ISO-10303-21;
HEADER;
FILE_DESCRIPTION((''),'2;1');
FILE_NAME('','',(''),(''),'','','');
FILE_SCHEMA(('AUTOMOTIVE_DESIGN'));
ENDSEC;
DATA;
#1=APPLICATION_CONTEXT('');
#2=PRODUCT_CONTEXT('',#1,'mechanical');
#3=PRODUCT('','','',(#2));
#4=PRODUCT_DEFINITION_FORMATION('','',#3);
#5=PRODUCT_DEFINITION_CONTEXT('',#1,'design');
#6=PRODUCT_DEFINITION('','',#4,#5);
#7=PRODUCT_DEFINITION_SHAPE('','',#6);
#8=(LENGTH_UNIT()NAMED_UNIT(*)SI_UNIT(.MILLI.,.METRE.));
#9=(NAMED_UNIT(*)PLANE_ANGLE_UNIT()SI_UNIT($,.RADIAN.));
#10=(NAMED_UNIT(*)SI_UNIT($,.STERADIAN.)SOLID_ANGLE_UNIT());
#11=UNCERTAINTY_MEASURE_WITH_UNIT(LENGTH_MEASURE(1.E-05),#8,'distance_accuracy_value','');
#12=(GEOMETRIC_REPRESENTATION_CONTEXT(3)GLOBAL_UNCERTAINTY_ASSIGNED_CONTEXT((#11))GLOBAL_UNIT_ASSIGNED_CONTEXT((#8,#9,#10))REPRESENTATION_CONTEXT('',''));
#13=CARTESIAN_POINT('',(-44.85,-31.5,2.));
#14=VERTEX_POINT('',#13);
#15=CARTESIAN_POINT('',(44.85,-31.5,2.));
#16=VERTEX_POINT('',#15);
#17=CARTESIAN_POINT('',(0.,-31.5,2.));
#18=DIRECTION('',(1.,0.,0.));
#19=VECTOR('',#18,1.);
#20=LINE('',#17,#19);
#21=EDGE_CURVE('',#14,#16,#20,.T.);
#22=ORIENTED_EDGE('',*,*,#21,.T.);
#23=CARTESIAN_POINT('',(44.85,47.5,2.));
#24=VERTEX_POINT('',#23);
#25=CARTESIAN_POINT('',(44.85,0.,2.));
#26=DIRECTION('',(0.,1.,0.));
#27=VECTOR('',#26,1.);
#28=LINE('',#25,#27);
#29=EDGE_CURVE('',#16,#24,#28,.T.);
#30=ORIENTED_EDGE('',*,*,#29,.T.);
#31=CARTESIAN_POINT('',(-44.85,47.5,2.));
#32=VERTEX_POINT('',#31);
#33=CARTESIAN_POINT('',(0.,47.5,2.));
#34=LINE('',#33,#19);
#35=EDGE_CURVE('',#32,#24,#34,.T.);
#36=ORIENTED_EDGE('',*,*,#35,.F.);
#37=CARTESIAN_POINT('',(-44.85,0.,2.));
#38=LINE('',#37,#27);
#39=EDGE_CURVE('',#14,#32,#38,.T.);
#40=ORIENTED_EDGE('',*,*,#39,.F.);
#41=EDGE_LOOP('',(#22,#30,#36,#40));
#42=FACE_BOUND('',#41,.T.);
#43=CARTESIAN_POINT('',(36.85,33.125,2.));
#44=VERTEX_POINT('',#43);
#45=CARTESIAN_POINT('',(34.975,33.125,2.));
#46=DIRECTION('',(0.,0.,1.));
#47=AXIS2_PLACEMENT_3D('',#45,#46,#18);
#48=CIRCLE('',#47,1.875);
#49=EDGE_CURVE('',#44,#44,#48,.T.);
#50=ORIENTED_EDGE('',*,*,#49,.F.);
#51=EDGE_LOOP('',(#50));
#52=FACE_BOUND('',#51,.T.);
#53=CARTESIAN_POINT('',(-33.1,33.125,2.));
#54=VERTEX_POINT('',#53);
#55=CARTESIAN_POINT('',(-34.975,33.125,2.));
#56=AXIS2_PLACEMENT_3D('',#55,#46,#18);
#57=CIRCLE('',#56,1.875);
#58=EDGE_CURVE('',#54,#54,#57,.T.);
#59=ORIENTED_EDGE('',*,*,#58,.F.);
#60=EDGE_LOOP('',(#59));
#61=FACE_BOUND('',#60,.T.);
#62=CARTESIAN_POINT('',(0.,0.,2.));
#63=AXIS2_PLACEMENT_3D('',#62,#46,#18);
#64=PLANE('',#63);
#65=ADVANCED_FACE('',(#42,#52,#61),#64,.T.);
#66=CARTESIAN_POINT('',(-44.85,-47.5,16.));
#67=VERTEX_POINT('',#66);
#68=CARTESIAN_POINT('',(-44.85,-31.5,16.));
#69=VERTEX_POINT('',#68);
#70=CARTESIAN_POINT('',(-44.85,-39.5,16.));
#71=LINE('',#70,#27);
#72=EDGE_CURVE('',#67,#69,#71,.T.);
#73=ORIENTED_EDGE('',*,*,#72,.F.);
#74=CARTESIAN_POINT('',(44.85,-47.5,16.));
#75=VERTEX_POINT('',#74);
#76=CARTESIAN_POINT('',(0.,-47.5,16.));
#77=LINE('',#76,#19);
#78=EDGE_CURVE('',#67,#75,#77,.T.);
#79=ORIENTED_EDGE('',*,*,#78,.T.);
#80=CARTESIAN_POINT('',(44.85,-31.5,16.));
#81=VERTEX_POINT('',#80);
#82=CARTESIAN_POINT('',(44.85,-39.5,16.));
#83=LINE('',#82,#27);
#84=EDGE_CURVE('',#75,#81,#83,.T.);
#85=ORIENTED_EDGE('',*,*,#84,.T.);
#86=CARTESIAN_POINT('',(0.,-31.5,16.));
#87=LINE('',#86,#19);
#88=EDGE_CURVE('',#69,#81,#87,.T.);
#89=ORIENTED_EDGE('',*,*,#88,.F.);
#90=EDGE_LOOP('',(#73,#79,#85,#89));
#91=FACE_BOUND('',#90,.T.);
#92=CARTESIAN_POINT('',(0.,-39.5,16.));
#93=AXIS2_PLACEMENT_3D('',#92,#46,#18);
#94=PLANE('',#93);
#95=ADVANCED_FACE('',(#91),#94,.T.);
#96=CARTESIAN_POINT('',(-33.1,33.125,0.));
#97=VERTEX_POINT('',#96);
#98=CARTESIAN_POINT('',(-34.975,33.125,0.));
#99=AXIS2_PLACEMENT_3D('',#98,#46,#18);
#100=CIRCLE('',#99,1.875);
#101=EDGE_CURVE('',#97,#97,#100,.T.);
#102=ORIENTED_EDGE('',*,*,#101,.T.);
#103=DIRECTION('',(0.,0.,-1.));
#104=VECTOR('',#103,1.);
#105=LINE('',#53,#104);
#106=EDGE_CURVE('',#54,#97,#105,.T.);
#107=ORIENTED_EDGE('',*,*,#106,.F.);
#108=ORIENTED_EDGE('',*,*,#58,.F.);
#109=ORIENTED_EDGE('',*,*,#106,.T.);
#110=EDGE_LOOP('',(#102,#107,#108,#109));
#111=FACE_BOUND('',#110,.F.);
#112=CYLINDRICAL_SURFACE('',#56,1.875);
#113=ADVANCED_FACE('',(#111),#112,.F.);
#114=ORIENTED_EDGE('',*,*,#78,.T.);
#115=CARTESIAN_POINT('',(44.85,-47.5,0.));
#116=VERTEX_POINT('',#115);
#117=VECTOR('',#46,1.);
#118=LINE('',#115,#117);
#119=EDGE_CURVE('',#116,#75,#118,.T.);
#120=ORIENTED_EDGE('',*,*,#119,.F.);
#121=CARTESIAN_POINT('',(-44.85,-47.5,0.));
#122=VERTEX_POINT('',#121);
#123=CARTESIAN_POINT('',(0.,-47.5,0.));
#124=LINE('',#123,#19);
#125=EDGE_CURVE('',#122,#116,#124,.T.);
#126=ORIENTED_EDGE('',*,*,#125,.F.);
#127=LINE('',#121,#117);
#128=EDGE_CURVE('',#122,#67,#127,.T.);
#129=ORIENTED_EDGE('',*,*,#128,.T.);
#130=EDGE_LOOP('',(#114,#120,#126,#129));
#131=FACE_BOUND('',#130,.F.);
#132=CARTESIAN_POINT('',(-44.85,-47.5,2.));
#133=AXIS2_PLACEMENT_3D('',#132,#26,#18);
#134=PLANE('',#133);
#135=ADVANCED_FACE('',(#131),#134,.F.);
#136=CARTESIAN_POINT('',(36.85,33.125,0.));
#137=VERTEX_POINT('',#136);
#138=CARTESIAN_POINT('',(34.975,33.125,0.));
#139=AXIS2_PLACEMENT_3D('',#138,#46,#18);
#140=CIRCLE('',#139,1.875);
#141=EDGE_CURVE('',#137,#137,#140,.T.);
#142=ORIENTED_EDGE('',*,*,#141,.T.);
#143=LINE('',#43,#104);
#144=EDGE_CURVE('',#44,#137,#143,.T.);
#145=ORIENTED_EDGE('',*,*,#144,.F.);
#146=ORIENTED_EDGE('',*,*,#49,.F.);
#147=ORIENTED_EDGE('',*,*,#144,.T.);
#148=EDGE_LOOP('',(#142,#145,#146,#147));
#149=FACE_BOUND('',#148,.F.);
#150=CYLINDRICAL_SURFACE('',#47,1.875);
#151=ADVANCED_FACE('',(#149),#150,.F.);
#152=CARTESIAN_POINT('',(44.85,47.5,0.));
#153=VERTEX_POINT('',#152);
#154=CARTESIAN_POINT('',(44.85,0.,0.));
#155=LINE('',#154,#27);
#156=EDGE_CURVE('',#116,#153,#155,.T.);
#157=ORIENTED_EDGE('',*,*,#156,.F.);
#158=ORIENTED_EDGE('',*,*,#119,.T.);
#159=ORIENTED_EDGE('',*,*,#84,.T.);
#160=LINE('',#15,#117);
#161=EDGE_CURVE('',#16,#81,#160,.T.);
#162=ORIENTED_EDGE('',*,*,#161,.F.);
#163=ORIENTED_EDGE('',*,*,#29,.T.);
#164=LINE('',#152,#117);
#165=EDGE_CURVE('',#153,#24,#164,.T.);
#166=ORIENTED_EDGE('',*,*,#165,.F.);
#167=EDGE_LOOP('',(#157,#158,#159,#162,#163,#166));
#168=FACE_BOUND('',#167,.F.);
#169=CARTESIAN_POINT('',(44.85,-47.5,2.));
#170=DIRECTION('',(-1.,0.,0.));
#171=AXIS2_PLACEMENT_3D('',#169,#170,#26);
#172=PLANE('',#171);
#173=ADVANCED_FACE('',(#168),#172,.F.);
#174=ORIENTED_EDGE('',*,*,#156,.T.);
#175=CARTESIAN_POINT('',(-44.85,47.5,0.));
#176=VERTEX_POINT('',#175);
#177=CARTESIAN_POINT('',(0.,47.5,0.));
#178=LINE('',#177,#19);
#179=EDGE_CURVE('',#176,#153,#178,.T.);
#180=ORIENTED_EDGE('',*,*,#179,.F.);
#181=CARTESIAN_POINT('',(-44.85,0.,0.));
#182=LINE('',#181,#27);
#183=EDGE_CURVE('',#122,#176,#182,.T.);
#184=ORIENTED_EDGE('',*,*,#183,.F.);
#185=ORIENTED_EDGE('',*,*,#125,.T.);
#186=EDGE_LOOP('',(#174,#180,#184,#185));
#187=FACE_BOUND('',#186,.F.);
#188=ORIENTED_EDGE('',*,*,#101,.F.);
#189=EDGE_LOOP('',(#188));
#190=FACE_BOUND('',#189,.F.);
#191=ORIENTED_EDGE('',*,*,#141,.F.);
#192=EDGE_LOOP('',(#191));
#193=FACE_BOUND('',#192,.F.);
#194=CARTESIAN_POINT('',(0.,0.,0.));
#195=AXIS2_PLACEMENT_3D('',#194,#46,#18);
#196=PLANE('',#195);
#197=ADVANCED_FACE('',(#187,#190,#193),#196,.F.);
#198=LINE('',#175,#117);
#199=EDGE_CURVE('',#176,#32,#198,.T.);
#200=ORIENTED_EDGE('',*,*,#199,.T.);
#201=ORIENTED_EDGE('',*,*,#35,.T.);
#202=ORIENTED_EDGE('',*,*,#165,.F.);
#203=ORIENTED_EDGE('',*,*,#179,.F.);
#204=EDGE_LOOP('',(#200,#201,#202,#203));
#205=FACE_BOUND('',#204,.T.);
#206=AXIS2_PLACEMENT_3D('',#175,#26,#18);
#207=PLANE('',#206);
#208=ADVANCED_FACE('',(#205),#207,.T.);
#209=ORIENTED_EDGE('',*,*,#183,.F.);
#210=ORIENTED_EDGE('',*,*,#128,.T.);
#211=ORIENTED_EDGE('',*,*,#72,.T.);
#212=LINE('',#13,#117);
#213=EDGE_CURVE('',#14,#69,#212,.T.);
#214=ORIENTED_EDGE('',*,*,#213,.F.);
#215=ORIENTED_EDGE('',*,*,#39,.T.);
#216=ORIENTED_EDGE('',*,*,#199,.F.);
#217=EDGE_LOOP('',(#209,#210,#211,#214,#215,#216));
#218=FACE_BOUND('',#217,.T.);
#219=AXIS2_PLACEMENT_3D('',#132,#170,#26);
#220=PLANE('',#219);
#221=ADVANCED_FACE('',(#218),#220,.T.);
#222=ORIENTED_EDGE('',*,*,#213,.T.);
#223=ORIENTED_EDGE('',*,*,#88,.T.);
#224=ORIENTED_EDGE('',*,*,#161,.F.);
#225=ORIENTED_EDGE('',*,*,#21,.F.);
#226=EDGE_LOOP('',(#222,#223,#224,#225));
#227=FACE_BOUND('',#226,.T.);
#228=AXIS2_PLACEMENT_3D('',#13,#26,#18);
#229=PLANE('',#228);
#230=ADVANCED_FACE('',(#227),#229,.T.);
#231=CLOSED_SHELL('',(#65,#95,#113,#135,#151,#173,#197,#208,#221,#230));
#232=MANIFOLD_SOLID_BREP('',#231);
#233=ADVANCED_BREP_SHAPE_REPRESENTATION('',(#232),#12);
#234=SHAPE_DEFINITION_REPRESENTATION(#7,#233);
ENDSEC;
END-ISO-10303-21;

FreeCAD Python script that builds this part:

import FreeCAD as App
import Part
import Sketcher
from FreeCAD import Vector


def add_polygon(sketch, points):
    """Adds a closed chain of lines whose ends are joined by coincident constraints."""
    first, n = sketch.GeometryCount, len(points)
    for a, b in zip(points, points[1:] + points[:1]):
        sketch.addGeometry(Part.LineSegment(App.Vector(*a, 0), App.Vector(*b, 0)), False)
    for i in range(n):
        sketch.addConstraint(Sketcher.Constraint("Coincident", first + i, 2, first + (i + 1) % n, 1))

doc = App.newDocument("Part")
body = doc.addObject("PartDesign::Body", "Body")

sketch1 = doc.addObject("Sketcher::SketchObject", "Sketch")
body.addObject(sketch1)
sketch1.AttachmentSupport = (doc.XY_Plane, [""])
sketch1.MapMode = "FlatFace"
add_polygon(sketch1, [(-45, 48), (-45, -48), (45, -48), (45, 48)])
sketch1.addConstraint([
    Sketcher.Constraint("Vertical", 0),
    Sketcher.Constraint("Horizontal", 1),
    Sketcher.Constraint("Vertical", 2),
    Sketcher.Constraint("Horizontal", 3),
    Sketcher.Constraint("Symmetric", 0, 2, 2, 2, -1, 1),
    Sketcher.Constraint("DistanceY", 0, 2, 0, 1, 95.0),
    Sketcher.Constraint("DistanceX", 1, 1, 1, 2, 89.7),
])
pad1 = doc.addObject("PartDesign::Pad", "Pad")
body.addObject(pad1)
pad1.Profile = sketch1
pad1.Length = 2

sketch2 = doc.addObject("Sketcher::SketchObject", "Sketch001")
body.addObject(sketch2)
sketch2.AttachmentSupport = (doc.XY_Plane, [""])
sketch2.MapMode = "FlatFace"
sketch2.AttachmentOffset = App.Placement(Vector(0, 0, 2), App.Rotation())
sketch2.addGeometry([
    Part.Circle(Vector(-35, 33.1, 0), Vector(0, 0, 1), 1.9),
    Part.Circle(Vector(35, 33.1, 0), Vector(0, 0, 1), 1.9),
], False)
sketch2.addConstraint([
    Sketcher.Constraint("Equal", 0, 1),
    Sketcher.Constraint("Symmetric", 0, 3, 1, 3, -2),
    Sketcher.Constraint("Diameter", 0, 3.75),
    Sketcher.Constraint("DistanceX", 0, 3, 1, 3, 69.95),
    Sketcher.Constraint("DistanceY", -1, 1, 0, 3, 33.125),
])
pocket1 = doc.addObject("PartDesign::Pocket", "Pocket")
body.addObject(pocket1)
pocket1.Profile = sketch2
pocket1.Type = "ThroughAll"

sketch3 = doc.addObject("Sketcher::SketchObject", "Sketch002")
body.addObject(sketch3)
sketch3.AttachmentSupport = (doc.XY_Plane, [""])
sketch3.MapMode = "FlatFace"
sketch3.AttachmentOffset = App.Placement(Vector(0, 0, 2), App.Rotation())
add_polygon(sketch3, [(-45, -32), (-45, -48), (45, -48), (45, -32)])
sketch3.addConstraint([
    Sketcher.Constraint("Vertical", 0),
    Sketcher.Constraint("Horizontal", 1),
    Sketcher.Constraint("Vertical", 2),
    Sketcher.Constraint("Horizontal", 3),
    Sketcher.Constraint("DistanceY", 0, 2, 0, 1, 16.0),
    Sketcher.Constraint("DistanceX", 1, 1, 1, 2, 89.7),
    Sketcher.Constraint("DistanceY", 0, 2, -1, 1, 47.5),
    Sketcher.Constraint("DistanceX", 0, 2, -1, 1, 44.85),
])
pad2 = doc.addObject("PartDesign::Pad", "Pad001")
body.addObject(pad2)
pad2.Profile = sketch3
pad2.Length = 14

doc.recompute()
